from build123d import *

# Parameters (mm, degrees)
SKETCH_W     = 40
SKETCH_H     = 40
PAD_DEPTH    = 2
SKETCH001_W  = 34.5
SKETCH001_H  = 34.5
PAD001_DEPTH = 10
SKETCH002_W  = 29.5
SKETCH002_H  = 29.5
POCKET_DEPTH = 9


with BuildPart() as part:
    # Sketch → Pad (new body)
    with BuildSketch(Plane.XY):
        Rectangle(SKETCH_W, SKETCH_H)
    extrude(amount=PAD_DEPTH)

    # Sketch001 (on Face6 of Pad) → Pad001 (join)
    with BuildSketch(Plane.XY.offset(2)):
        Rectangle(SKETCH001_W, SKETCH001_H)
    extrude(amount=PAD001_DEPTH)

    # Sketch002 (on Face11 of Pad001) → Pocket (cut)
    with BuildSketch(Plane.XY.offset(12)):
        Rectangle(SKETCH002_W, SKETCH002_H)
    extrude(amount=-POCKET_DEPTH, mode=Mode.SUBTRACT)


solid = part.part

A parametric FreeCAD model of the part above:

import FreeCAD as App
import Part
import Sketcher
Q = App.Units.Quantity

doc = App.newDocument("Part")
body = doc.addObject("PartDesign::Body", "Body")

sketch1 = doc.addObject("Sketcher::SketchObject", "Sketch")
body.addObject(sketch1)
sketch1.AttachmentSupport = (doc.XY_Plane, [""])
sketch1.MapMode = "FlatFace"
sketch1.addGeometry(Part.LineSegment(App.Vector(-20, 20, 0), App.Vector(-20, -20, 0)), False)
sketch1.addGeometry(Part.LineSegment(App.Vector(-20, -20, 0), App.Vector(20, -20, 0)), False)
sketch1.addGeometry(Part.LineSegment(App.Vector(20, -20, 0), App.Vector(20, 20, 0)), False)
sketch1.addGeometry(Part.LineSegment(App.Vector(20, 20, 0), App.Vector(-20, 20, 0)), False)
sketch1.addConstraint(Sketcher.Constraint("Coincident", 0, 2, 1, 1))
sketch1.addConstraint(Sketcher.Constraint("Coincident", 1, 2, 2, 1))
sketch1.addConstraint(Sketcher.Constraint("Coincident", 2, 2, 3, 1))
sketch1.addConstraint(Sketcher.Constraint("Coincident", 3, 2, 0, 1))
sketch1.addConstraint(Sketcher.Constraint("Vertical", 0))
sketch1.addConstraint(Sketcher.Constraint("Horizontal", 1))
sketch1.addConstraint(Sketcher.Constraint("Vertical", 2))
sketch1.addConstraint(Sketcher.Constraint("Horizontal", 3))
sketch1.addConstraint(Sketcher.Constraint("Symmetric", 0, 2, 2, 2, -1, 1))
sketch1.addConstraint(Sketcher.Constraint("Equal", 3, 0))
sketch1.addConstraint(Sketcher.Constraint("DistanceX", 1, 1, 1, 2, Q("40 mm")))
pad1 = doc.addObject("PartDesign::Pad", "Pad")
body.addObject(pad1)
pad1.Profile = sketch1
pad1.Length = 2

sketch2 = doc.addObject("Sketcher::SketchObject", "Sketch001")
body.addObject(sketch2)
sketch2.AttachmentSupport = (doc.XY_Plane, [""])
sketch2.MapMode = "FlatFace"
sketch2.AttachmentOffset = App.Placement(App.Vector(0, 0, 2), App.Rotation())
sketch2.addGeometry(Part.LineSegment(App.Vector(-17, 17, 0), App.Vector(-17, -17, 0)), False)
sketch2.addGeometry(Part.LineSegment(App.Vector(-17, -17, 0), App.Vector(17, -17, 0)), False)
sketch2.addGeometry(Part.LineSegment(App.Vector(17, -17, 0), App.Vector(17, 17, 0)), False)
sketch2.addGeometry(Part.LineSegment(App.Vector(17, 17, 0), App.Vector(-17, 17, 0)), False)
sketch2.addConstraint(Sketcher.Constraint("Coincident", 0, 2, 1, 1))
sketch2.addConstraint(Sketcher.Constraint("Coincident", 1, 2, 2, 1))
sketch2.addConstraint(Sketcher.Constraint("Coincident", 2, 2, 3, 1))
sketch2.addConstraint(Sketcher.Constraint("Coincident", 3, 2, 0, 1))
sketch2.addConstraint(Sketcher.Constraint("Vertical", 0))
sketch2.addConstraint(Sketcher.Constraint("Horizontal", 1))
sketch2.addConstraint(Sketcher.Constraint("Vertical", 2))
sketch2.addConstraint(Sketcher.Constraint("Horizontal", 3))
sketch2.addConstraint(Sketcher.Constraint("Symmetric", 0, 2, 2, 2, -1, 1))
sketch2.addConstraint(Sketcher.Constraint("Equal", 3, 0))
sketch2.addConstraint(Sketcher.Constraint("DistanceX", 1, 1, 1, 2, Q("34.5 mm")))
pad2 = doc.addObject("PartDesign::Pad", "Pad001")
body.addObject(pad2)
pad2.Profile = sketch2
pad2.Length = 10

sketch3 = doc.addObject("Sketcher::SketchObject", "Sketch002")
body.addObject(sketch3)
sketch3.AttachmentSupport = (doc.XY_Plane, [""])
sketch3.MapMode = "FlatFace"
sketch3.AttachmentOffset = App.Placement(App.Vector(0, 0, 12), App.Rotation())
sketch3.addGeometry(Part.LineSegment(App.Vector(-15, 15, 0), App.Vector(-15, -15, 0)), False)
sketch3.addGeometry(Part.LineSegment(App.Vector(-15, -15, 0), App.Vector(15, -15, 0)), False)
sketch3.addGeometry(Part.LineSegment(App.Vector(15, -15, 0), App.Vector(15, 15, 0)), False)
sketch3.addGeometry(Part.LineSegment(App.Vector(15, 15, 0), App.Vector(-15, 15, 0)), False)
sketch3.addConstraint(Sketcher.Constraint("Coincident", 0, 2, 1, 1))
sketch3.addConstraint(Sketcher.Constraint("Coincident", 1, 2, 2, 1))
sketch3.addConstraint(Sketcher.Constraint("Coincident", 2, 2, 3, 1))
sketch3.addConstraint(Sketcher.Constraint("Coincident", 3, 2, 0, 1))
sketch3.addConstraint(Sketcher.Constraint("Vertical", 0))
sketch3.addConstraint(Sketcher.Constraint("Horizontal", 1))
sketch3.addConstraint(Sketcher.Constraint("Vertical", 2))
sketch3.addConstraint(Sketcher.Constraint("Horizontal", 3))
sketch3.addConstraint(Sketcher.Constraint("Symmetric", 0, 2, 2, 2, -1, 1))
sketch3.addConstraint(Sketcher.Constraint("Equal", 3, 0))
sketch3.addConstraint(Sketcher.Constraint("DistanceX", 1, 1, 1, 2, Q("29.5 mm")))
pocket1 = doc.addObject("PartDesign::Pocket", "Pocket")
body.addObject(pocket1)
pocket1.Profile = sketch3
pocket1.Length = 9

doc.recompute()
